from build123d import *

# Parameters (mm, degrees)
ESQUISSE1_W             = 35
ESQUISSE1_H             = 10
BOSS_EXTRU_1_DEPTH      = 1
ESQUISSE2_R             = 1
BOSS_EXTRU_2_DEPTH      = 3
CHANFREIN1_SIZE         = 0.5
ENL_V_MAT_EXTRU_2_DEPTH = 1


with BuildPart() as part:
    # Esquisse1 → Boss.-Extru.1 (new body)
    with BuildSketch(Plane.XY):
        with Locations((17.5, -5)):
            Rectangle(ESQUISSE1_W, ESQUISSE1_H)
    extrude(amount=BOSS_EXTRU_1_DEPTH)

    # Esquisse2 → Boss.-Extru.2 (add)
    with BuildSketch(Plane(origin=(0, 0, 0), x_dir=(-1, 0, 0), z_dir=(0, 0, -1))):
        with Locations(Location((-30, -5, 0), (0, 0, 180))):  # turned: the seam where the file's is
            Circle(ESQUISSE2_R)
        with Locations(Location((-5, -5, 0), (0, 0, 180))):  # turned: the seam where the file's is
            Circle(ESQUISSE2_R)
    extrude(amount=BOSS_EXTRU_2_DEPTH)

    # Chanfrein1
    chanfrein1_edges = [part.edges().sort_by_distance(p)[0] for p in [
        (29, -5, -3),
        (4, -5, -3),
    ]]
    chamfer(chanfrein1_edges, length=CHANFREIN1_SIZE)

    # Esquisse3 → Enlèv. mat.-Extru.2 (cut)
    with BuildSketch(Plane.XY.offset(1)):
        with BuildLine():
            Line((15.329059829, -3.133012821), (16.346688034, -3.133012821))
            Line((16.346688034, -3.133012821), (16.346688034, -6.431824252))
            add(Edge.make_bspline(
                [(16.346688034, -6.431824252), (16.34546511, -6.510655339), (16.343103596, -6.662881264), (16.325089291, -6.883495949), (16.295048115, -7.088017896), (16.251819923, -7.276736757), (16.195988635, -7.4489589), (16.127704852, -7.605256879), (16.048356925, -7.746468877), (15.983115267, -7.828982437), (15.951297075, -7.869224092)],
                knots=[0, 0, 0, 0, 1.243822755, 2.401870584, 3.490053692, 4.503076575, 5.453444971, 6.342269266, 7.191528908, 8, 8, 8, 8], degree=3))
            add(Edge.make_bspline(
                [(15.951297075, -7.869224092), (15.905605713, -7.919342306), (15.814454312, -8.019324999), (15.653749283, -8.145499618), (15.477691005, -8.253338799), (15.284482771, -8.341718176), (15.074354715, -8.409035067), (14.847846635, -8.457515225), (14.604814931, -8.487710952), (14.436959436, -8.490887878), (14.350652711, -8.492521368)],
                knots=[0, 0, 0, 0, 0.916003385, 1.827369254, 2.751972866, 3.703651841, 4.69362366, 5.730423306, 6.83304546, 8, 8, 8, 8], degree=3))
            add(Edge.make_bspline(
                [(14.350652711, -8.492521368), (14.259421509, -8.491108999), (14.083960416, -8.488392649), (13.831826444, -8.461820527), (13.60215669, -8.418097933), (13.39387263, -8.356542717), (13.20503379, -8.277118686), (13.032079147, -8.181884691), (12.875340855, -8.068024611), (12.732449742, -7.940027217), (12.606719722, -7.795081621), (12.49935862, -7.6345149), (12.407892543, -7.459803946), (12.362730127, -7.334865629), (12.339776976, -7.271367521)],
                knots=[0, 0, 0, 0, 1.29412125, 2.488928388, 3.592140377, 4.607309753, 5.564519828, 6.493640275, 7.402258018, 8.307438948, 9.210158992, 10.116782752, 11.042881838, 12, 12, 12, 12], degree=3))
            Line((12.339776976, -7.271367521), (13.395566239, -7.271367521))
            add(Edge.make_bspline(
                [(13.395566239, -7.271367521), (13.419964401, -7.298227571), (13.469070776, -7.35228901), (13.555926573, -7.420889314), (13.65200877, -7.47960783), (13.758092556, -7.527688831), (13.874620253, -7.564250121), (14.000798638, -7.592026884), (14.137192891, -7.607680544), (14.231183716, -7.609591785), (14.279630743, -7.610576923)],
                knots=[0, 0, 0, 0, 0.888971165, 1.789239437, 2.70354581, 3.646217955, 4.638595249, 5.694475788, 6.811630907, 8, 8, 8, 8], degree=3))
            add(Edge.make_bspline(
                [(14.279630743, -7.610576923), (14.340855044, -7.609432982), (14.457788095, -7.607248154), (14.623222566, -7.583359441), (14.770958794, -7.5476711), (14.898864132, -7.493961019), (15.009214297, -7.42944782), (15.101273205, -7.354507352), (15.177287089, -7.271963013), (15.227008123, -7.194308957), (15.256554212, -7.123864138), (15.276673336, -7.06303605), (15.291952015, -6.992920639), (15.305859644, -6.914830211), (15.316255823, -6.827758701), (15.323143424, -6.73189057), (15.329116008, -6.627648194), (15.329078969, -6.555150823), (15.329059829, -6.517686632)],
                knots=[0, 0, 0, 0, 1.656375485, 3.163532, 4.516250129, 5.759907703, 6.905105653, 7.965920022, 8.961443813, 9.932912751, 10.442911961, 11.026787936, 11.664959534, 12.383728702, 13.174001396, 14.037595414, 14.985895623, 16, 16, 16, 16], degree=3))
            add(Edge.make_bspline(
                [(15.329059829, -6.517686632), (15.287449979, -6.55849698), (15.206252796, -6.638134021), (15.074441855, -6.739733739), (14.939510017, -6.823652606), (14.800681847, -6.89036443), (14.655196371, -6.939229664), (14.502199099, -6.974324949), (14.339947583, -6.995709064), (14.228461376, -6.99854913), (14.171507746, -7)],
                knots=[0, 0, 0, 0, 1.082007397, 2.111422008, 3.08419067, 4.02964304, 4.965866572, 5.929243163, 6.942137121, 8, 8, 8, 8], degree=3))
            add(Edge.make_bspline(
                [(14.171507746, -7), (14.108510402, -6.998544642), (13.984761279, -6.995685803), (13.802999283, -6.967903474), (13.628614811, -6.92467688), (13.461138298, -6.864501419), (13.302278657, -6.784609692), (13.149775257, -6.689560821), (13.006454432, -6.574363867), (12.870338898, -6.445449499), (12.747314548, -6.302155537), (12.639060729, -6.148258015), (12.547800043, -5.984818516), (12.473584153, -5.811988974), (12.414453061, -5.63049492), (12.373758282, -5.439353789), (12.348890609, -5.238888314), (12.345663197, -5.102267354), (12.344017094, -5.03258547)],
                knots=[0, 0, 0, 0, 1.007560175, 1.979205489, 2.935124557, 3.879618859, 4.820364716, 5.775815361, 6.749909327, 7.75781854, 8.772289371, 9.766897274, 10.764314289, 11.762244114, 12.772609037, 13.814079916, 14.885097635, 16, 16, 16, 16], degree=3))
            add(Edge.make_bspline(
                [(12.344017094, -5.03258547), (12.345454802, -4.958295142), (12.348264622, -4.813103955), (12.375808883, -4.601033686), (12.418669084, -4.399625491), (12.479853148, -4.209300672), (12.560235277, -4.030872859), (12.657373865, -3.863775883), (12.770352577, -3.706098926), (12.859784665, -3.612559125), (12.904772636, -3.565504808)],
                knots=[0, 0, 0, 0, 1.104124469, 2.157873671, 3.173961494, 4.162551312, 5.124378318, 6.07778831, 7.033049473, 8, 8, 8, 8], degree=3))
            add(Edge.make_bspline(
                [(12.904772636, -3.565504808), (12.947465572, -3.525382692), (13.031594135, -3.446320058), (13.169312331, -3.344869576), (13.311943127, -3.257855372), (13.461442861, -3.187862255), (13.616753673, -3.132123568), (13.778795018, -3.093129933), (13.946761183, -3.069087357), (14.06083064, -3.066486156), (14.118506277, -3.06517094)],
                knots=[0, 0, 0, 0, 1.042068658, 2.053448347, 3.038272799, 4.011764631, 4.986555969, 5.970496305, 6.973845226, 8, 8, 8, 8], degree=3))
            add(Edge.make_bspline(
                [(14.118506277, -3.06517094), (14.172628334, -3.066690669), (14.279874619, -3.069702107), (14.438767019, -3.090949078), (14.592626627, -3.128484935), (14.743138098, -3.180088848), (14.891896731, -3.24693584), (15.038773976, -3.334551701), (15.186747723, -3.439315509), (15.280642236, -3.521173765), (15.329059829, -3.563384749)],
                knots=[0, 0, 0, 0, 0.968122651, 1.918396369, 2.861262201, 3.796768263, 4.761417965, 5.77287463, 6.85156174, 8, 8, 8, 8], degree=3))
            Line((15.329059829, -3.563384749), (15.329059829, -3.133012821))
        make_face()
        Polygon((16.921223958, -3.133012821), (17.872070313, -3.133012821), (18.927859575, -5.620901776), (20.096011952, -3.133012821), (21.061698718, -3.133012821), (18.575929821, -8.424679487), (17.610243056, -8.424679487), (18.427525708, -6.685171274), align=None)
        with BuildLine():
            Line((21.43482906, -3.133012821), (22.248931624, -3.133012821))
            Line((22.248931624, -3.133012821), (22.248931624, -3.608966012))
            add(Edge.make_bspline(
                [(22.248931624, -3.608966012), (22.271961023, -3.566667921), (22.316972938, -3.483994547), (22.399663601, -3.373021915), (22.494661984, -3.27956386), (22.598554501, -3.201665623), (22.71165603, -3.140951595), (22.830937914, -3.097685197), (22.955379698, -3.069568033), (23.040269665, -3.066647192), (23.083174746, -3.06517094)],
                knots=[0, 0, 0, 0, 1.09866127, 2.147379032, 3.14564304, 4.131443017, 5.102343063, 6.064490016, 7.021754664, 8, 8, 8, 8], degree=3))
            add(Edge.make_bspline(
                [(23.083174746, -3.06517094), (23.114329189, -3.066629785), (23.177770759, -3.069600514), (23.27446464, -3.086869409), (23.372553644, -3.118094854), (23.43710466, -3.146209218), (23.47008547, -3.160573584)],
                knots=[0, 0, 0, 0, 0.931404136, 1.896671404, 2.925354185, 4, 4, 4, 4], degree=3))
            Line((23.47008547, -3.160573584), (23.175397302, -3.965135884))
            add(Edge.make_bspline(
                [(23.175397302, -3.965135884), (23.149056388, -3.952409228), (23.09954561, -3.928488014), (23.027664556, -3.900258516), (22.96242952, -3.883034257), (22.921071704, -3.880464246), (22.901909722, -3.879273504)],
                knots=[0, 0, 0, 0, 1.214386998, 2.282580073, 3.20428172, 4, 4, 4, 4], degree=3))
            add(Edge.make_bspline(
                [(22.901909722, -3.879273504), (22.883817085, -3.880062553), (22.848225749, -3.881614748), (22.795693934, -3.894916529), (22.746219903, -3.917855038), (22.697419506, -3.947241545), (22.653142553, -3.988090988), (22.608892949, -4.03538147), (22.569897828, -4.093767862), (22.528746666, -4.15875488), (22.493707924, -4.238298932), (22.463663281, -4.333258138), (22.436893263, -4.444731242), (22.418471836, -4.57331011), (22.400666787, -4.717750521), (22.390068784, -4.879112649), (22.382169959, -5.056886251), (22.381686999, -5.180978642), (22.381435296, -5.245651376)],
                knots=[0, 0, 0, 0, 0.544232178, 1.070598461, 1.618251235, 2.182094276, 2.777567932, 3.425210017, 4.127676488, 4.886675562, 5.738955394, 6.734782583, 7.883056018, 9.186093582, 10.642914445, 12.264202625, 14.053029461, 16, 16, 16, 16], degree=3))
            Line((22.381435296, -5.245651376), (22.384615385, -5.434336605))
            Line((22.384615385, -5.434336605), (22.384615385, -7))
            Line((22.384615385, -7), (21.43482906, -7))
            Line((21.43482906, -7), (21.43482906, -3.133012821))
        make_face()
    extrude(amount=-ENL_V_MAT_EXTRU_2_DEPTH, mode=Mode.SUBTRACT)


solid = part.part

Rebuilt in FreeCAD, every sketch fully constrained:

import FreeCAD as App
import Part
import Sketcher
from FreeCAD import Vector


def edges_at(feature, points):
    """Names of the edges that pass closest to the given points."""
    edges = feature.Shape.Edges
    near = lambda p: min(range(len(edges)), key=lambda i: edges[i].distToShape(Part.Vertex(*p))[0])
    return sorted({f"Edge{near(p) + 1}" for p in points})

doc = App.newDocument("Part")
body = doc.addObject("PartDesign::Body", "Body")

# Sketch on XY plane
sketch1 = doc.addObject("Sketcher::SketchObject", "Sketch")
body.addObject(sketch1)
sketch1.AttachmentSupport = (doc.XY_Plane, [""])
sketch1.MapMode = "FlatFace"
sketch1.addGeometry([
    Part.LineSegment(Vector(0, 0, 0), Vector(0, -10, 0)),
    Part.LineSegment(Vector(0, -10, 0), Vector(35, -10, 0)),
    Part.LineSegment(Vector(35, -10, 0), Vector(35, 0, 0)),
    Part.LineSegment(Vector(35, 0, 0), Vector(0, 0, 0)),
], False)
sketch1.addConstraint([
    Sketcher.Constraint("Coincident", 0, 2, 1, 1),
    Sketcher.Constraint("Coincident", 1, 2, 2, 1),
    Sketcher.Constraint("Coincident", 2, 2, 3, 1),
    Sketcher.Constraint("Coincident", 3, 2, 0, 1),
    Sketcher.Constraint("Vertical", 0),
    Sketcher.Constraint("Horizontal", 1),
    Sketcher.Constraint("Vertical", 2),
    Sketcher.Constraint("Horizontal", 3),
    Sketcher.Constraint("Coincident", 3, 2, -1, 1),
    Sketcher.Constraint("DistanceX", 1, 1, 1, 2, 35.0),
    Sketcher.Constraint("DistanceY", 0, 2, 0, 1, 10.0),
])
pad1 = doc.addObject("PartDesign::Pad", "Pad")
body.addObject(pad1)
pad1.Profile = sketch1
pad1.Length = 1

# Sketch on XY plane
sketch2 = doc.addObject("Sketcher::SketchObject", "Sketch001")
body.addObject(sketch2)
sketch2.AttachmentSupport = (doc.XY_Plane, [""])
sketch2.MapMode = "FlatFace"
sketch2.addGeometry([
    Part.Circle(Vector(30, -5, 0), Vector(0, 0, 1), 1),
    Part.Circle(Vector(5, -5, 0), Vector(0, 0, 1), 1),
], False)
sketch2.addConstraint([
    Sketcher.Constraint("Equal", 0, 1),
    Sketcher.Constraint("Horizontal", 0, 3, 1, 3),
    Sketcher.Constraint("Diameter", 0, 2.0),
    Sketcher.Constraint("DistanceX", -1, 1, 0, 3, 30.0),
    Sketcher.Constraint("DistanceY", 0, 3, -1, 1, 5.0),
    Sketcher.Constraint("DistanceX", -1, 1, 1, 3, 5.0),
])
pad2 = doc.addObject("PartDesign::Pad", "Pad001")
body.addObject(pad2)
pad2.Profile = sketch2
pad2.Length = 3
pad2.Reversed = True
doc.recompute()

chamfer = doc.addObject("PartDesign::Chamfer", "Chamfer")
body.addObject(chamfer)
chamfer.Base = (pad2, edges_at(pad2, [(29, -5, -3), (4, -5, -3)]))
chamfer.Size = 0.5

# Sketch on XY plane
sketch3 = doc.addObject("Sketcher::SketchObject", "Sketch002")
body.addObject(sketch3)
sketch3.AttachmentSupport = (doc.XY_Plane, [""])
sketch3.MapMode = "FlatFace"
sketch3.AttachmentOffset = App.Placement(Vector(0, 0, 1), App.Rotation())
sketch3.addGeometry([
    Part.LineSegment(Vector(16.346688, -3.133013, 0), Vector(15.32906, -3.133013, 0)),  # 0
    Part.LineSegment(Vector(15.32906, -3.133013, 0), Vector(15.32906, -3.563385, 0)),  # 1
    Part.BSplineCurve([Vector(14.118506, -3.065171, 0), Vector(14.172628, -3.066691, 0), Vector(14.279875, -3.069702, 0), Vector(14.438767, -3.090949, 0), Vector(14.592627, -3.128485, 0), Vector(14.743138, -3.180089, 0), Vector(14.891897, -3.246936, 0), Vector(15.038774, -3.334552, 0), Vector(15.186748, -3.439316, 0), Vector(15.280642, -3.521174, 0), Vector(15.32906, -3.563385, 0)], [4, 1, 1, 1, 1, 1, 1, 1, 4], [0, 0.968122651, 1.918396369, 2.861262201, 3.796768263, 4.761417965, 5.77287463, 6.85156174, 8], False, 3, [1, 1, 1, 1, 1, 1, 1, 1, 1, 1, 1], False),  # 2
    Part.BSplineCurve([Vector(12.904773, -3.565505, 0), Vector(12.947466, -3.525383, 0), Vector(13.031594, -3.44632, 0), Vector(13.169312, -3.34487, 0), Vector(13.311943, -3.257855, 0), Vector(13.461443, -3.187862, 0), Vector(13.616754, -3.132124, 0), Vector(13.778795, -3.09313, 0), Vector(13.946761, -3.069087, 0), Vector(14.060831, -3.066486, 0), Vector(14.118506, -3.065171, 0)], [4, 1, 1, 1, 1, 1, 1, 1, 4], [0, 1.042068658, 2.053448347, 3.038272799, 4.011764631, 4.986555969, 5.970496305, 6.973845226, 8], False, 3, [1, 1, 1, 1, 1, 1, 1, 1, 1, 1, 1], False),  # 3
    Part.BSplineCurve([Vector(12.344017, -5.032585, 0), Vector(12.345455, -4.958295, 0), Vector(12.348265, -4.813104, 0), Vector(12.375809, -4.601034, 0), Vector(12.418669, -4.399625, 0), Vector(12.479853, -4.209301, 0), Vector(12.560235, -4.030873, 0), Vector(12.657374, -3.863776, 0), Vector(12.770353, -3.706099, 0), Vector(12.859785, -3.612559, 0), Vector(12.904773, -3.565505, 0)], [4, 1, 1, 1, 1, 1, 1, 1, 4], [0, 1.104124469, 2.157873671, 3.173961494, 4.162551312, 5.124378318, 6.07778831, 7.033049473, 8], False, 3, [1, 1, 1, 1, 1, 1, 1, 1, 1, 1, 1], False),  # 4
    Part.BSplineCurve([Vector(14.171508, -7, 0), Vector(14.10851, -6.998545, 0), Vector(13.984761, -6.995686, 0), Vector(13.802999, -6.967903, 0), Vector(13.628615, -6.924677, 0), Vector(13.461138, -6.864501, 0), Vector(13.302279, -6.78461, 0), Vector(13.149775, -6.689561, 0), Vector(13.006454, -6.574364, 0), Vector(12.870339, -6.445449, 0), Vector(12.747315, -6.302156, 0), Vector(12.639061, -6.148258, 0), Vector(12.5478, -5.984819, 0), Vector(12.473584, -5.811989, 0), Vector(12.414453, -5.630495, 0), Vector(12.373758, -5.439354, 0), Vector(12.348891, -5.238888, 0), Vector(12.345663, -5.102267, 0), Vector(12.344017, -5.032585, 0)], [4, 1, 1, 1, 1, 1, 1, 1, 1, 1, 1, 1, 1, 1, 1, 1, 4], [0, 1.007560175, 1.979205489, 2.935124557, 3.879618859, 4.820364716, 5.775815361, 6.749909327, 7.75781854, 8.772289371, 9.766897274, 10.764314289, 11.762244114, 12.772609037, 13.814079916, 14.885097635, 16], False, 3, [1, 1, 1, 1, 1, 1, 1, 1, 1, 1, 1, 1, 1, 1, 1, 1, 1, 1, 1], False),  # 5
    Part.BSplineCurve([Vector(15.32906, -6.517687, 0), Vector(15.28745, -6.558497, 0), Vector(15.206253, -6.638134, 0), Vector(15.074442, -6.739734, 0), Vector(14.93951, -6.823653, 0), Vector(14.800682, -6.890364, 0), Vector(14.655196, -6.93923, 0), Vector(14.502199, -6.974325, 0), Vector(14.339948, -6.995709, 0), Vector(14.228461, -6.998549, 0), Vector(14.171508, -7, 0)], [4, 1, 1, 1, 1, 1, 1, 1, 4], [0, 1.082007397, 2.111422008, 3.08419067, 4.02964304, 4.965866572, 5.929243163, 6.942137121, 8], False, 3, [1, 1, 1, 1, 1, 1, 1, 1, 1, 1, 1], False),  # 6
    Part.BSplineCurve([Vector(14.279631, -7.610577, 0), Vector(14.340855, -7.609433, 0), Vector(14.457788, -7.607248, 0), Vector(14.623223, -7.583359, 0), Vector(14.770959, -7.547671, 0), Vector(14.898864, -7.493961, 0), Vector(15.009214, -7.429448, 0), Vector(15.101273, -7.354507, 0), Vector(15.177287, -7.271963, 0), Vector(15.227008, -7.194309, 0), Vector(15.256554, -7.123864, 0), Vector(15.276673, -7.063036, 0), Vector(15.291952, -6.992921, 0), Vector(15.30586, -6.91483, 0), Vector(15.316256, -6.827759, 0), Vector(15.323143, -6.731891, 0), Vector(15.329116, -6.627648, 0), Vector(15.329079, -6.555151, 0), Vector(15.32906, -6.517687, 0)], [4, 1, 1, 1, 1, 1, 1, 1, 1, 1, 1, 1, 1, 1, 1, 1, 4], [0, 1.656375485, 3.163532, 4.516250129, 5.759907703, 6.905105653, 7.965920022, 8.961443813, 9.932912751, 10.442911961, 11.026787936, 11.664959534, 12.383728702, 13.174001396, 14.037595414, 14.985895623, 16], False, 3, [1, 1, 1, 1, 1, 1, 1, 1, 1, 1, 1, 1, 1, 1, 1, 1, 1, 1, 1], False),  # 7
    Part.BSplineCurve([Vector(13.395566, -7.271368, 0), Vector(13.419964, -7.298228, 0), Vector(13.469071, -7.352289, 0), Vector(13.555927, -7.420889, 0), Vector(13.652009, -7.479608, 0), Vector(13.758093, -7.527689, 0), Vector(13.87462, -7.56425, 0), Vector(14.000799, -7.592027, 0), Vector(14.137193, -7.607681, 0), Vector(14.231184, -7.609592, 0), Vector(14.279631, -7.610577, 0)], [4, 1, 1, 1, 1, 1, 1, 1, 4], [0, 0.888971165, 1.789239437, 2.70354581, 3.646217955, 4.638595249, 5.694475788, 6.811630907, 8], False, 3, [1, 1, 1, 1, 1, 1, 1, 1, 1, 1, 1], False),  # 8
    Part.LineSegment(Vector(13.395566, -7.271368, 0), Vector(12.339777, -7.271368, 0)),  # 9
    Part.BSplineCurve([Vector(14.350653, -8.492521, 0), Vector(14.259422, -8.491109, 0), Vector(14.08396, -8.488393, 0), Vector(13.831826, -8.461821, 0), Vector(13.602157, -8.418098, 0), Vector(13.393873, -8.356543, 0), Vector(13.205034, -8.277119, 0), Vector(13.032079, -8.181885, 0), Vector(12.875341, -8.068025, 0), Vector(12.73245, -7.940027, 0), Vector(12.60672, -7.795082, 0), Vector(12.499359, -7.634515, 0), Vector(12.407893, -7.459804, 0), Vector(12.36273, -7.334866, 0), Vector(12.339777, -7.271368, 0)], [4, 1, 1, 1, 1, 1, 1, 1, 1, 1, 1, 1, 4], [0, 1.29412125, 2.488928388, 3.592140377, 4.607309753, 5.564519828, 6.493640275, 7.402258018, 8.307438948, 9.210158992, 10.116782752, 11.042881838, 12], False, 3, [1, 1, 1, 1, 1, 1, 1, 1, 1, 1, 1, 1, 1, 1, 1], False),  # 10
    Part.BSplineCurve([Vector(15.951297, -7.869224, 0), Vector(15.905606, -7.919342, 0), Vector(15.814454, -8.019325, 0), Vector(15.653749, -8.1455, 0), Vector(15.477691, -8.253339, 0), Vector(15.284483, -8.341718, 0), Vector(15.074355, -8.409035, 0), Vector(14.847847, -8.457515, 0), Vector(14.604815, -8.487711, 0), Vector(14.436959, -8.490888, 0), Vector(14.350653, -8.492521, 0)], [4, 1, 1, 1, 1, 1, 1, 1, 4], [0, 0.916003385, 1.827369254, 2.751972866, 3.703651841, 4.69362366, 5.730423306, 6.83304546, 8], False, 3, [1, 1, 1, 1, 1, 1, 1, 1, 1, 1, 1], False),  # 11
    Part.BSplineCurve([Vector(16.346688, -6.431824, 0), Vector(16.345465, -6.510655, 0), Vector(16.343104, -6.662881, 0), Vector(16.325089, -6.883496, 0), Vector(16.295048, -7.088018, 0), Vector(16.25182, -7.276737, 0), Vector(16.195989, -7.448959, 0), Vector(16.127705, -7.605257, 0), Vector(16.048357, -7.746469, 0), Vector(15.983115, -7.828982, 0), Vector(15.951297, -7.869224, 0)], [4, 1, 1, 1, 1, 1, 1, 1, 4], [0, 1.243822755, 2.401870584, 3.490053692, 4.503076575, 5.453444971, 6.342269266, 7.191528908, 8], False, 3, [1, 1, 1, 1, 1, 1, 1, 1, 1, 1, 1], False),  # 12
    Part.LineSegment(Vector(16.346688, -6.431824, 0), Vector(16.346688, -3.133013, 0)),  # 13
    Part.LineSegment(Vector(17.87207, -3.133013, 0), Vector(16.921224, -3.133013, 0)),  # 14
    Part.LineSegment(Vector(16.921224, -3.133013, 0), Vector(18.427526, -6.685171, 0)),  # 15
    Part.LineSegment(Vector(18.427526, -6.685171, 0), Vector(17.610243, -8.424679, 0)),  # 16
    Part.LineSegment(Vector(17.610243, -8.424679, 0), Vector(18.57593, -8.424679, 0)),  # 17
    Part.LineSegment(Vector(18.57593, -8.424679, 0), Vector(21.061699, -3.133013, 0)),  # 18
    Part.LineSegment(Vector(21.061699, -3.133013, 0), Vector(20.096012, -3.133013, 0)),  # 19
    Part.LineSegment(Vector(20.096012, -3.133013, 0), Vector(18.92786, -5.620902, 0)),  # 20
    Part.LineSegment(Vector(18.92786, -5.620902, 0), Vector(17.87207, -3.133013, 0)),  # 21
    Part.LineSegment(Vector(22.248932, -3.133013, 0), Vector(21.434829, -3.133013, 0)),  # 22
    Part.LineSegment(Vector(21.434829, -3.133013, 0), Vector(21.434829, -7, 0)),  # 23
    Part.LineSegment(Vector(21.434829, -7, 0), Vector(22.384615, -7, 0)),  # 24
    Part.LineSegment(Vector(22.384615, -7, 0), Vector(22.384615, -5.434337, 0)),  # 25
    Part.LineSegment(Vector(22.384615, -5.434337, 0), Vector(22.381435, -5.245651, 0)),  # 26
    Part.BSplineCurve([Vector(22.90191, -3.879274, 0), Vector(22.883817, -3.880063, 0), Vector(22.848226, -3.881615, 0), Vector(22.795694, -3.894917, 0), Vector(22.74622, -3.917855, 0), Vector(22.69742, -3.947242, 0), Vector(22.653143, -3.988091, 0), Vector(22.608893, -4.035381, 0), Vector(22.569898, -4.093768, 0), Vector(22.528747, -4.158755, 0), Vector(22.493708, -4.238299, 0), Vector(22.463663, -4.333258, 0), Vector(22.436893, -4.444731, 0), Vector(22.418472, -4.57331, 0), Vector(22.400667, -4.717751, 0), Vector(22.390069, -4.879113, 0), Vector(22.38217, -5.056886, 0), Vector(22.381687, -5.180979, 0), Vector(22.381435, -5.245651, 0)], [4, 1, 1, 1, 1, 1, 1, 1, 1, 1, 1, 1, 1, 1, 1, 1, 4], [0, 0.544232178, 1.070598461, 1.618251235, 2.182094276, 2.777567932, 3.425210017, 4.127676488, 4.886675562, 5.738955394, 6.734782583, 7.883056018, 9.186093582, 10.642914445, 12.264202625, 14.053029461, 16], False, 3, [1, 1, 1, 1, 1, 1, 1, 1, 1, 1, 1, 1, 1, 1, 1, 1, 1, 1, 1], False),  # 27
    Part.BSplineCurve([Vector(23.175397, -3.965136, 0), Vector(23.149056, -3.952409, 0), Vector(23.099546, -3.928488, 0), Vector(23.027665, -3.900259, 0), Vector(22.96243, -3.883034, 0), Vector(22.921072, -3.880464, 0), Vector(22.90191, -3.879274, 0)], [4, 1, 1, 1, 4], [0, 1.214386998, 2.282580073, 3.20428172, 4], False, 3, [1, 1, 1, 1, 1, 1, 1], False),  # 28
    Part.LineSegment(Vector(23.175397, -3.965136, 0), Vector(23.470085, -3.160574, 0)),  # 29
    Part.BSplineCurve([Vector(23.083175, -3.065171, 0), Vector(23.114329, -3.06663, 0), Vector(23.177771, -3.069601, 0), Vector(23.274465, -3.086869, 0), Vector(23.372554, -3.118095, 0), Vector(23.437105, -3.146209, 0), Vector(23.470085, -3.160574, 0)], [4, 1, 1, 1, 4], [0, 0.931404136, 1.896671404, 2.925354185, 4], False, 3, [1, 1, 1, 1, 1, 1, 1], False),  # 30
    Part.BSplineCurve([Vector(22.248932, -3.608966, 0), Vector(22.271961, -3.566668, 0), Vector(22.316973, -3.483995, 0), Vector(22.399664, -3.373022, 0), Vector(22.494662, -3.279564, 0), Vector(22.598555, -3.201666, 0), Vector(22.711656, -3.140952, 0), Vector(22.830938, -3.097685, 0), Vector(22.95538, -3.069568, 0), Vector(23.04027, -3.066647, 0), Vector(23.083175, -3.065171, 0)], [4, 1, 1, 1, 1, 1, 1, 1, 4], [0, 1.09866127, 2.147379032, 3.14564304, 4.131443017, 5.102343063, 6.064490016, 7.021754664, 8], False, 3, [1, 1, 1, 1, 1, 1, 1, 1, 1, 1, 1], False),  # 31
    Part.LineSegment(Vector(22.248932, -3.608966, 0), Vector(22.248932, -3.133013, 0)),  # 32
], False)
sketch3.addConstraint([
    Sketcher.Constraint("Block", 2),
    Sketcher.Constraint("Block", 3),
    Sketcher.Constraint("Block", 4),
    Sketcher.Constraint("Block", 5),
    Sketcher.Constraint("Block", 6),
    Sketcher.Constraint("Block", 7),
    Sketcher.Constraint("Block", 8),
    Sketcher.Constraint("Block", 10),
    Sketcher.Constraint("Block", 11),
    Sketcher.Constraint("Block", 12),
    Sketcher.Constraint("Block", 27),
    Sketcher.Constraint("Block", 28),
    Sketcher.Constraint("Block", 30),
    Sketcher.Constraint("Block", 31),
    Sketcher.Constraint("Coincident", 0, 2, 1, 1),
    Sketcher.Constraint("Coincident", 1, 2, 2, 2),
    Sketcher.Constraint("Coincident", 8, 1, 9, 1),
    Sketcher.Constraint("Coincident", 9, 2, 10, 2),
    Sketcher.Constraint("Coincident", 12, 1, 13, 1),
    Sketcher.Constraint("Coincident", 13, 2, 0, 1),
    Sketcher.Constraint("Coincident", 14, 2, 15, 1),
    Sketcher.Constraint("Coincident", 15, 2, 16, 1),
    Sketcher.Constraint("Coincident", 16, 2, 17, 1),
    Sketcher.Constraint("Coincident", 17, 2, 18, 1),
    Sketcher.Constraint("Coincident", 18, 2, 19, 1),
    Sketcher.Constraint("Coincident", 19, 2, 20, 1),
    Sketcher.Constraint("Coincident", 20, 2, 21, 1),
    Sketcher.Constraint("Coincident", 21, 2, 14, 1),
    Sketcher.Constraint("Coincident", 22, 2, 23, 1),
    Sketcher.Constraint("Coincident", 23, 2, 24, 1),
    Sketcher.Constraint("Coincident", 24, 2, 25, 1),
    Sketcher.Constraint("Coincident", 25, 2, 26, 1),
    Sketcher.Constraint("Coincident", 26, 2, 27, 2),
    Sketcher.Constraint("Coincident", 28, 1, 29, 1),
    Sketcher.Constraint("Coincident", 29, 2, 30, 2),
    Sketcher.Constraint("Coincident", 31, 1, 32, 1),
    Sketcher.Constraint("Coincident", 32, 2, 22, 1),
    Sketcher.Constraint("Horizontal", 0),
    Sketcher.Constraint("Vertical", 1),
    Sketcher.Constraint("Vertical", 13),
    Sketcher.Constraint("Horizontal", 14),
    Sketcher.Constraint("Horizontal", 17),
    Sketcher.Constraint("Horizontal", 19),
    Sketcher.Constraint("Horizontal", 22),
    Sketcher.Constraint("Vertical", 23),
    Sketcher.Constraint("Horizontal", 24),
    Sketcher.Constraint("Vertical", 25),
    Sketcher.Constraint("Vertical", 32),
    Sketcher.Constraint("Horizontal", 13, 2, 14, 2),
    Sketcher.Constraint("Horizontal", 14, 2, 18, 2),
    Sketcher.Constraint("Horizontal", 21, 2, 22, 2),
    Sketcher.Constraint("Equal", 17, 19),
    Sketcher.Constraint("DistanceY", 23, 2, -1, 1, 7.0),
    Sketcher.Constraint("DistanceY", 1, 2, 1, 1, 0.430372),
    Sketcher.Constraint("DistanceX", -1, 1, 18, 2, 21.061699),
    Sketcher.Constraint("DistanceY", 20, 2, -1, 1, 5.620902),
    Sketcher.Constraint("DistanceX", 14, 2, 15, 2, 1.506302),
    Sketcher.Constraint("DistanceX", 17, 2, 23, 2, 2.858899),
    Sketcher.Constraint("Distance", 15, 3.858338),
    Sketcher.Constraint("DistanceX", 14, 2, 14, 1, 0.950846),
    Sketcher.Constraint("DistanceX", 17, 1, 17, 2, 0.965687),
    Sketcher.Constraint("DistanceX", 22, 2, 22, 1, 0.814103),
    Sketcher.Constraint("DistanceX", 24, 1, 24, 2, 0.949786),
    Sketcher.Constraint("DistanceY", 25, 1, 25, 2, 1.565663),
    Sketcher.Constraint("DistanceY", 16, 2, -1, 1, 8.424679),
    Sketcher.Constraint("DistanceX", -1, 1, 20, 2, 18.92786),
    Sketcher.Constraint("DistanceX", -1, 1, 21, 2, 17.87207),
])
pocket1 = doc.addObject("PartDesign::Pocket", "Pocket")
body.addObject(pocket1)
pocket1.Profile = sketch3
pocket1.Length = 1

doc.recompute()
